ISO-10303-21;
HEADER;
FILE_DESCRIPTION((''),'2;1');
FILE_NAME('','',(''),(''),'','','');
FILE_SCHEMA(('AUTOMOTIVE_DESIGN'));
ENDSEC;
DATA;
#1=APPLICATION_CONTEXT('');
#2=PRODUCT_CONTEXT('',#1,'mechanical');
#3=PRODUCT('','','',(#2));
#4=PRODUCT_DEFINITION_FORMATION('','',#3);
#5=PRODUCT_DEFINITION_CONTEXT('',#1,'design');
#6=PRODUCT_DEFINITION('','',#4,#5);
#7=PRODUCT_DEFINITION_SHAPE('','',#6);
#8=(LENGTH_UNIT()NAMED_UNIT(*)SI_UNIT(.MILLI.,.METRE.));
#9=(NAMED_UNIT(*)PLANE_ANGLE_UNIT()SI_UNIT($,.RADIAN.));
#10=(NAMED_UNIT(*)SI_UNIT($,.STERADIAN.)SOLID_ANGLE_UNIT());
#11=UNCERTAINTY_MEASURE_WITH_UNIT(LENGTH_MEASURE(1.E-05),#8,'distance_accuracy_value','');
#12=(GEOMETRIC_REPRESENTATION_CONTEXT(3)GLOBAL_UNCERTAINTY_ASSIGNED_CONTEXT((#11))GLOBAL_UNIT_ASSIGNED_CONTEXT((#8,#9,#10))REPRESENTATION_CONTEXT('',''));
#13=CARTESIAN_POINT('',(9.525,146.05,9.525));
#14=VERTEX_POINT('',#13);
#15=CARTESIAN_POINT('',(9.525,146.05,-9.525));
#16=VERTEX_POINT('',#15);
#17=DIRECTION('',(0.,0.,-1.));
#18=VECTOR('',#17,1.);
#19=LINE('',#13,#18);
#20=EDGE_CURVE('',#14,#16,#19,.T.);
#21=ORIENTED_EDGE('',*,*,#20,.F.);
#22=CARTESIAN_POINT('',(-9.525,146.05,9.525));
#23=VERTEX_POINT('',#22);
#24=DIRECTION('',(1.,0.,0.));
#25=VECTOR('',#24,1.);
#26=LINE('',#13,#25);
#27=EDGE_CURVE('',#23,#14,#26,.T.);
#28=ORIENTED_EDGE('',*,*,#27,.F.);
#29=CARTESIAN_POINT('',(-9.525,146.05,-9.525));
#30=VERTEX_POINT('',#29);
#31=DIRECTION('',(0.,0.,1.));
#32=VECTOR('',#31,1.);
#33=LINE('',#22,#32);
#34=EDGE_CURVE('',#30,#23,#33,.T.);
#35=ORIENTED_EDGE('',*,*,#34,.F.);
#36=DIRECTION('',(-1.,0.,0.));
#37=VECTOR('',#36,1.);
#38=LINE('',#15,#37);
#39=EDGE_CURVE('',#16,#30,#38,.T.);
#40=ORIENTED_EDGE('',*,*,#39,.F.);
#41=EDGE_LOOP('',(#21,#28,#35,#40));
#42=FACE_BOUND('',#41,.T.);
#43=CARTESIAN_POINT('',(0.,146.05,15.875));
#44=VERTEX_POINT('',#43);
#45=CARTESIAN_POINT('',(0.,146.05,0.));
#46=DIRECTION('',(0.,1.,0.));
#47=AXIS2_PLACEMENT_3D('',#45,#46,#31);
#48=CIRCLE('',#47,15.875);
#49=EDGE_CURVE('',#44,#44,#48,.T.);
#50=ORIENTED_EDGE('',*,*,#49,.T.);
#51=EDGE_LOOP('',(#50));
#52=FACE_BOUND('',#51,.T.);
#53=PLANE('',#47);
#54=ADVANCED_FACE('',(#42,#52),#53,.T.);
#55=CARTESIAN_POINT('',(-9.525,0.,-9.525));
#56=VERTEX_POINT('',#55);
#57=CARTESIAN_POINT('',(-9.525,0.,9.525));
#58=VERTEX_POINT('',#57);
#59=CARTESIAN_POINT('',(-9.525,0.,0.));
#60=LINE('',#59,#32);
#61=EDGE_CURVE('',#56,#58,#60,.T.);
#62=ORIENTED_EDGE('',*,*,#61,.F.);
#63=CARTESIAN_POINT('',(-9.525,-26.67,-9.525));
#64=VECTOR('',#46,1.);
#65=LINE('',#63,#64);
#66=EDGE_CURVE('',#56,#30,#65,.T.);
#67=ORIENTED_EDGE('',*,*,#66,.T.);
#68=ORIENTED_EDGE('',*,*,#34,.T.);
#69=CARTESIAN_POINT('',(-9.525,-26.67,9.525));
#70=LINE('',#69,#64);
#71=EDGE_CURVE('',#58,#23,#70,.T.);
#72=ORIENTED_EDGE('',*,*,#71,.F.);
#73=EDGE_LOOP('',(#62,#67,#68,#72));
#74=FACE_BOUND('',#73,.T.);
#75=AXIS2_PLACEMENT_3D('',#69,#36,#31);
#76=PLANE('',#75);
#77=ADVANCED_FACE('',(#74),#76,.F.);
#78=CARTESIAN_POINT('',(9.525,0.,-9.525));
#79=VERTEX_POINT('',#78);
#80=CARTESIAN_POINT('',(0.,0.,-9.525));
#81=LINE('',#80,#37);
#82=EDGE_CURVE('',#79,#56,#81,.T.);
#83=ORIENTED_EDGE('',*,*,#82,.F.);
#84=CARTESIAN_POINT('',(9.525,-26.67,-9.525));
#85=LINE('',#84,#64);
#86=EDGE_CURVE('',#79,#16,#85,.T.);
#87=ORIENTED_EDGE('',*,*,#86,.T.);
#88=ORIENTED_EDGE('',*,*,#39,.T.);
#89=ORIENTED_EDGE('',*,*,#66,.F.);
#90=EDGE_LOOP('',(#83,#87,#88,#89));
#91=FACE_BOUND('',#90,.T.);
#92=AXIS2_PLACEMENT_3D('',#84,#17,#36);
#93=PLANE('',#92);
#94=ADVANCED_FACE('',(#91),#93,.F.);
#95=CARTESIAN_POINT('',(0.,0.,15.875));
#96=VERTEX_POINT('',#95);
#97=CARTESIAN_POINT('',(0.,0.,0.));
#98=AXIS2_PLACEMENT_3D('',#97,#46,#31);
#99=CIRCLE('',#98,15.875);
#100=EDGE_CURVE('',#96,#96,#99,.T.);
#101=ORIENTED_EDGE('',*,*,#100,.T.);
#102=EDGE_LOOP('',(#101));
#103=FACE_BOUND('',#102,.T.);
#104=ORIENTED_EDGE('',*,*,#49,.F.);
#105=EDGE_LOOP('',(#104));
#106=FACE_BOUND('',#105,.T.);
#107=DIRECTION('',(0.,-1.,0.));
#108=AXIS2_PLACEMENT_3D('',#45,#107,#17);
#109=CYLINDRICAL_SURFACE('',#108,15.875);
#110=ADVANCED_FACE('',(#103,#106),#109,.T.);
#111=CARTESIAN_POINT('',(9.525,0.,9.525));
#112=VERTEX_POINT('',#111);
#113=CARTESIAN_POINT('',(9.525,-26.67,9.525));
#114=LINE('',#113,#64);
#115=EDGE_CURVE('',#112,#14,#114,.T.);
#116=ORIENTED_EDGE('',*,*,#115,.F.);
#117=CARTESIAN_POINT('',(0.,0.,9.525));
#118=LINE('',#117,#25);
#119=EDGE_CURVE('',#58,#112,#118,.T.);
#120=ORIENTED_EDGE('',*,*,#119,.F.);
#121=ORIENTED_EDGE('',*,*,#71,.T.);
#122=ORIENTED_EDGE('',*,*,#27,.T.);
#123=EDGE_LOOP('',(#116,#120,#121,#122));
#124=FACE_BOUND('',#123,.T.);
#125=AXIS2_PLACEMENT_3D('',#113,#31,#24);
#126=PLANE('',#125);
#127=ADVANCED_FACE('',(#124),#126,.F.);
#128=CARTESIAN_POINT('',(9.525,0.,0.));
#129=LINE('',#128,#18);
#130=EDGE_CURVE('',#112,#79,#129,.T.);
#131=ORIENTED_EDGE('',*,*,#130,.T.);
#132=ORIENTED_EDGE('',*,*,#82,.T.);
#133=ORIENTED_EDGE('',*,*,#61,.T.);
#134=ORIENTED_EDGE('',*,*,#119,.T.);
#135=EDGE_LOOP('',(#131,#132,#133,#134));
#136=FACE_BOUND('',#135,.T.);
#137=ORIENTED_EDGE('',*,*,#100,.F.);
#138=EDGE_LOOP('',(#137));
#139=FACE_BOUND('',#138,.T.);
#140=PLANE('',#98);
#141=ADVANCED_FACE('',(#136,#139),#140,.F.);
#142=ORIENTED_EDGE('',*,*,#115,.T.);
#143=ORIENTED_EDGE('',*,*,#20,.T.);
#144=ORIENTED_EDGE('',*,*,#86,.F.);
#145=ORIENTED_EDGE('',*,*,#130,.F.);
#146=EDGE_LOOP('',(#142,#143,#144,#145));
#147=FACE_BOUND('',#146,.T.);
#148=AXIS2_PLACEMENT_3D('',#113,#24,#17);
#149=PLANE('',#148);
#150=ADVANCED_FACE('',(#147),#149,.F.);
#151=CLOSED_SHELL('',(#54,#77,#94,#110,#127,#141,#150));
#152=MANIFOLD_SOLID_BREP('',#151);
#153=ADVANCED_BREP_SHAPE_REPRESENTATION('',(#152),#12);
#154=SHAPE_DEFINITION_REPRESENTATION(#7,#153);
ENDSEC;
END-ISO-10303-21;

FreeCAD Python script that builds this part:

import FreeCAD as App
import Part
import Sketcher
Q = App.Units.Quantity

doc = App.newDocument("Part")
body = doc.addObject("PartDesign::Body", "Body")

sketch1 = body.newObject("Sketcher::SketchObject", "Sketch")
sketch1.AttachmentSupport = (doc.getObject("XZ_Plane"), [""])
sketch1.MapMode = "FlatFace"
sketch1.addGeometry(Part.Circle(App.Vector(0, 0, 0), App.Vector(0, 0, 1), 16), False)
sketch1.addConstraint([
    Sketcher.Constraint("Coincident", 0, 3, -1, 1),
    Sketcher.Constraint("Diameter", 0, Q("1.25 in")),
])
pad1 = body.newObject("PartDesign::Pad", "Pad")
pad1.Profile = sketch1
pad1.Length = Q("5.75 in")
pad1.Reversed = True

sketch2 = body.newObject("Sketcher::SketchObject", "Sketch001")
sketch2.AttachmentSupport = (doc.getObject("XZ_Plane"), [""])
sketch2.MapMode = "FlatFace"
sketch2.AttachmentOffset = App.Placement(App.Vector(0, 0, -5.75 * 25.4), App.Rotation())
sketch2.addGeometry([
    Part.LineSegment(App.Vector(-10, -10, 0), App.Vector(-10, 10, 0)),
    Part.LineSegment(App.Vector(-10, 10, 0), App.Vector(10, 10, 0)),
    Part.LineSegment(App.Vector(10, 10, 0), App.Vector(10, -10, 0)),
    Part.LineSegment(App.Vector(10, -10, 0), App.Vector(-10, -10, 0)),
], False)
sketch2.addConstraint([
    Sketcher.Constraint("Coincident", 0, 2, 1, 1),
    Sketcher.Constraint("Coincident", 1, 2, 2, 1),
    Sketcher.Constraint("Coincident", 2, 2, 3, 1),
    Sketcher.Constraint("Coincident", 3, 2, 0, 1),
    Sketcher.Constraint("Vertical", 0),
    Sketcher.Constraint("Horizontal", 1),
    Sketcher.Constraint("Vertical", 2),
    Sketcher.Constraint("Horizontal", 3),
    Sketcher.Constraint("Symmetric", 0, 2, 2, 2, -1, 1),
    Sketcher.Constraint("Equal", 3, 0),
    Sketcher.Constraint("DistanceX", 1, 1, 1, 2, Q("0.75 in")),
])
pocket1 = body.newObject("PartDesign::Pocket", "Pocket")
pocket1.Profile = sketch2
pocket1.Length = Q("6.8 in")
pocket1.Reversed = True

doc.recompute()
